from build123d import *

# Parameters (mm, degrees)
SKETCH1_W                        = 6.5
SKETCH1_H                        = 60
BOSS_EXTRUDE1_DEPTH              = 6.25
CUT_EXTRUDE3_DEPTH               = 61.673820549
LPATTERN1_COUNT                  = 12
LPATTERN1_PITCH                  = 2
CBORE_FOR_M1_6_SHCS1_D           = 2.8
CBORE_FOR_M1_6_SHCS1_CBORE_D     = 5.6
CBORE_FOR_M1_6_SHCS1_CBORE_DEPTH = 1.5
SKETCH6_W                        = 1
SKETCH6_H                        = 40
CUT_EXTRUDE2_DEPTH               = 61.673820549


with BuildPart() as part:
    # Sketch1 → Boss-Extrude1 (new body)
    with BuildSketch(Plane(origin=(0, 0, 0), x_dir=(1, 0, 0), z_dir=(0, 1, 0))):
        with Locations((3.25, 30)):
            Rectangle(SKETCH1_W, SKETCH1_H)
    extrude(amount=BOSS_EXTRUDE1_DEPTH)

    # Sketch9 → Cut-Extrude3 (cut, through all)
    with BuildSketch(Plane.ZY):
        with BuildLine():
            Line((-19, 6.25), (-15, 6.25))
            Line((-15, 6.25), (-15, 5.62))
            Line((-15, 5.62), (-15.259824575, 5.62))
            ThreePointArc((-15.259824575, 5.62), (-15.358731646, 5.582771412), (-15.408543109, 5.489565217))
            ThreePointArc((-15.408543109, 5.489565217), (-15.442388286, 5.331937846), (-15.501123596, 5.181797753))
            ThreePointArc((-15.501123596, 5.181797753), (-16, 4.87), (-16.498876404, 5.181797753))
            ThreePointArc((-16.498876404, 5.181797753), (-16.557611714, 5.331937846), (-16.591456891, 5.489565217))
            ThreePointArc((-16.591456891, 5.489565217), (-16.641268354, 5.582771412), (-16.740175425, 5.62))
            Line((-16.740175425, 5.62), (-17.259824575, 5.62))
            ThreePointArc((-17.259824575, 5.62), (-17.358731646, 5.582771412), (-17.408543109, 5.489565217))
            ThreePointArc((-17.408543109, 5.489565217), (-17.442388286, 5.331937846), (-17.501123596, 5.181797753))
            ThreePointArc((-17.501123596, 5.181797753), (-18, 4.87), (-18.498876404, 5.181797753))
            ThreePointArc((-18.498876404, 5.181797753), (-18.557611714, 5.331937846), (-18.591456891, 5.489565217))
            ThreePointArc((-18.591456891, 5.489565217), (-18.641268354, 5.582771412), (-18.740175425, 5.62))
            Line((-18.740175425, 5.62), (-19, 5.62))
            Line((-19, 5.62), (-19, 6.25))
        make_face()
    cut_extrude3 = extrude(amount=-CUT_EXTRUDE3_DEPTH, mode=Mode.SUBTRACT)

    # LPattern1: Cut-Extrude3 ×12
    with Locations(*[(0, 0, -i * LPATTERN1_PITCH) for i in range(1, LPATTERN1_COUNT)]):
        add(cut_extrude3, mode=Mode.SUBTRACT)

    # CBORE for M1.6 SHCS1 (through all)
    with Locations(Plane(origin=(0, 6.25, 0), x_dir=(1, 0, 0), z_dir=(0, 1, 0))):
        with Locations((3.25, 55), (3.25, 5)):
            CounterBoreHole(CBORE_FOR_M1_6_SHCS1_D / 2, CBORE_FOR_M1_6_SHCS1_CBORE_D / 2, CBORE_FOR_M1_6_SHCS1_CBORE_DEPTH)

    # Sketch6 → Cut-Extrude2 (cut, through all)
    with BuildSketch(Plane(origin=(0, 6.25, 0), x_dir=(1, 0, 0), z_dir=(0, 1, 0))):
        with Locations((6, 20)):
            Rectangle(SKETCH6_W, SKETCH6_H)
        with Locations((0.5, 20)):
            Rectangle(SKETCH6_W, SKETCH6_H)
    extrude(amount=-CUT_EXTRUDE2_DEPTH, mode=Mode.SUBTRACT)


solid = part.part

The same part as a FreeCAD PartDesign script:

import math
import FreeCAD as App
import Part
import Sketcher
from FreeCAD import Vector


def add_polygon(sketch, points):
    """Adds a closed chain of lines whose ends are joined by coincident constraints."""
    first, n = sketch.GeometryCount, len(points)
    for a, b in zip(points, points[1:] + points[:1]):
        sketch.addGeometry(Part.LineSegment(App.Vector(*a, 0), App.Vector(*b, 0)), False)
    for i in range(n):
        sketch.addConstraint(Sketcher.Constraint("Coincident", first + i, 2, first + (i + 1) % n, 1))

doc = App.newDocument("Part")
body = doc.addObject("PartDesign::Body", "Body")

# Sketch on XZ plane
sketch1 = body.newObject("Sketcher::SketchObject", "Sketch")
sketch1.AttachmentSupport = (doc.getObject("XZ_Plane"), [""])
sketch1.MapMode = "FlatFace"
add_polygon(sketch1, [(0, -60), (0, 0), (6, 0), (6, -60)])  # lines 0-3
sketch1.addConstraint([
    Sketcher.Constraint("Vertical", 0),
    Sketcher.Constraint("Horizontal", 1),
    Sketcher.Constraint("Vertical", 2),
    Sketcher.Constraint("Horizontal", 3),
    Sketcher.Constraint("Coincident", 0, 2, -1, 1),
    Sketcher.Constraint("DistanceY", 0, 1, 0, 2, 60.0),
    Sketcher.Constraint("DistanceX", 1, 1, 1, 2, 6.5),
])
pad1 = body.newObject("PartDesign::Pad", "Pad")
pad1.Profile = sketch1
pad1.Length = 6.25
pad1.Reversed = True

# Sketch on YZ plane
sketch2 = body.newObject("Sketcher::SketchObject", "Sketch001")
sketch2.AttachmentSupport = (doc.getObject("YZ_Plane"), [""])
sketch2.MapMode = "FlatFace"
sketch2.addGeometry([
    Part.LineSegment(Vector(6.25, -15, 0), Vector(6.25, -19, 0)),  # 0
    Part.LineSegment(Vector(6.25, -19, 0), Vector(5.62, -19, 0)),  # 1
    Part.LineSegment(Vector(5.62, -19, 0), Vector(5.62, -18.74, 0)),  # 2
    Part.ArcOfCircle(Part.Circle(Vector(5.47, -18.74, 0), Vector(0, 0, 1), 0.15), math.radians(0), math.radians(83)),  # 3
    Part.ArcOfCircle(Part.Circle(Vector(5.62, -17.6, 0), Vector(0, 0, 1), 1), math.radians(-115.99), math.radians(-97.49)),  # 4
    Part.ArcOfCircle(Part.Circle(Vector(5.42, -18, 0), Vector(0, 0, 1), 0.55), math.radians(116), math.radians(244)),  # 5
    Part.ArcOfCircle(Part.Circle(Vector(5.62, -18.4, 0), Vector(0, 0, 1), 1), math.radians(97.49), math.radians(115.99)),  # 6
    Part.ArcOfCircle(Part.Circle(Vector(5.47, -17.26, 0), Vector(0, 0, 1), 0.15), math.radians(-83), math.radians(0)),  # 7
    Part.LineSegment(Vector(5.62, -17.26, 0), Vector(5.62, -16.74, 0)),  # 8
    Part.ArcOfCircle(Part.Circle(Vector(5.47, -16.74, 0), Vector(0, 0, 1), 0.15), math.radians(0), math.radians(83)),  # 9
    Part.ArcOfCircle(Part.Circle(Vector(5.62, -15.6, 0), Vector(0, 0, 1), 1), math.radians(-115.99), math.radians(-97.49)),  # 10
    Part.ArcOfCircle(Part.Circle(Vector(5.42, -16, 0), Vector(0, 0, 1), 0.55), math.radians(116), math.radians(244)),  # 11
    Part.ArcOfCircle(Part.Circle(Vector(5.62, -16.4, 0), Vector(0, 0, 1), 1), math.radians(97.49), math.radians(115.99)),  # 12
    Part.ArcOfCircle(Part.Circle(Vector(5.47, -15.26, 0), Vector(0, 0, 1), 0.15), math.radians(-83), math.radians(0)),  # 13
    Part.LineSegment(Vector(5.62, -15.26, 0), Vector(5.62, -15, 0)),  # 14
    Part.LineSegment(Vector(5.62, -15, 0), Vector(6.25, -15, 0)),  # 15
], False)
sketch2.addConstraint([
    Sketcher.Constraint("Coincident", 0, 2, 1, 1),
    Sketcher.Constraint("Coincident", 1, 2, 2, 1),
    Sketcher.Constraint("Tangent", 2, 2, 3, 1),
    Sketcher.Constraint("Tangent", 3, 2, 4, 2),
    Sketcher.Constraint("Tangent", 4, 1, 5, 2),
    Sketcher.Constraint("Tangent", 5, 1, 6, 2),
    Sketcher.Constraint("Tangent", 6, 1, 7, 1),
    Sketcher.Constraint("Tangent", 7, 2, 8, 1),
    Sketcher.Constraint("Tangent", 8, 2, 9, 1),
    Sketcher.Constraint("Tangent", 9, 2, 10, 2),
    Sketcher.Constraint("Tangent", 10, 1, 11, 2),
    Sketcher.Constraint("Tangent", 11, 1, 12, 2),
    Sketcher.Constraint("Tangent", 12, 1, 13, 1),
    Sketcher.Constraint("Tangent", 13, 2, 14, 1),
    Sketcher.Constraint("Coincident", 14, 2, 15, 1),
    Sketcher.Constraint("Coincident", 15, 2, 0, 1),
    Sketcher.Constraint("Vertical", 0),
    Sketcher.Constraint("Horizontal", 1),
    Sketcher.Constraint("Vertical", 2),
    Sketcher.Constraint("Vertical", 8),
    Sketcher.Constraint("Vertical", 14),
    Sketcher.Constraint("Horizontal", 15),
    Sketcher.Constraint("Equal", 4, 6),
    Sketcher.Constraint("Equal", 3, 7),
    Sketcher.Constraint("Equal", 7, 9),
    Sketcher.Constraint("Equal", 6, 10),
    Sketcher.Constraint("Equal", 5, 11),
    Sketcher.Constraint("Equal", 10, 12),
    Sketcher.Constraint("Equal", 9, 13),
    Sketcher.Constraint("Vertical", 4, 3, 6, 3),
    Sketcher.Constraint("Vertical", 3, 3, 7, 3),
    Sketcher.Constraint("Vertical", 6, 3, 10, 3),
    Sketcher.Constraint("Vertical", 5, 3, 11, 3),
    Sketcher.Constraint("Vertical", 10, 3, 12, 3),
    Sketcher.Constraint("Vertical", 9, 3, 13, 3),
    Sketcher.Constraint("Vertical", 12, 3, 1, 2),
    Sketcher.Constraint("Equal", 2, 14),
    Sketcher.Constraint("Radius", 4, 1.0),
    Sketcher.Constraint("DistanceY", 0, 2, 0, 1, 4.0),
    Sketcher.Constraint("Radius", 3, 0.15),
    Sketcher.Constraint("DistanceY", 5, 3, -1, 1, 18.0),
    Sketcher.Constraint("DistanceY", 11, 3, -1, 1, 16.0),
    Sketcher.Constraint("Radius", 5, 0.555),
    Sketcher.Constraint("DistanceX", 1, 2, 1, 1, 0.63),
    Sketcher.Constraint("DistanceY", 4, 3, -1, 1, 17.6),
    Sketcher.Constraint("DistanceX", -1, 1, 3, 3, 5.47),
])
pocket1 = body.newObject("PartDesign::Pocket", "Pocket")
pocket1.Profile = sketch2
pocket1.Type = "ThroughAll"
pocket1.Reversed = True
doc.recompute()

linearpattern = body.newObject("PartDesign::LinearPattern", "LinearPattern")
linearpattern.Originals = [pocket1]
linearpattern.Direction = (doc.getObject("Z_Axis"), [""])
linearpattern.Mode = "offset"
linearpattern.Offset = 2
linearpattern.Occurrences = 12
linearpattern.Reversed = True
body.Tip = linearpattern

# Sketch on XZ plane
sketch3 = body.newObject("Sketcher::SketchObject", "Sketch002")
sketch3.AttachmentSupport = (doc.getObject("XZ_Plane"), [""])
sketch3.MapMode = "FlatFace"
sketch3.AttachmentOffset = App.Placement(Vector(0, 0, -6.25), App.Rotation())
sketch3.addGeometry([
    Part.Circle(Vector(3.2, -55, 0), Vector(0, 0, 1), 1.4),
    Part.Circle(Vector(3.2, -5, 0), Vector(0, 0, 1), 1.4),
], False)
sketch3.addConstraint([
    Sketcher.Constraint("Equal", 0, 1),
    Sketcher.Constraint("Vertical", 0, 3, 1, 3),
    Sketcher.Constraint("Diameter", 0, 2.8),
    Sketcher.Constraint("DistanceY", 0, 3, -1, 1, 55.0),
    Sketcher.Constraint("DistanceY", 1, 3, -1, 1, 5.0),
    Sketcher.Constraint("DistanceX", -1, 1, 0, 3, 3.25),
])
doc.recompute()
hole = body.newObject("PartDesign::Hole", "Hole")
hole.Profile = sketch3
hole.ThreadType = "None"
hole.Diameter = 2.8
hole.DepthType = "ThroughAll"
hole.HoleCutType = "Counterbore"
hole.HoleCutDiameter = 5.6
hole.HoleCutDepth = 1.5
hole.Reversed = True

# Sketch on XZ plane
sketch4 = body.newObject("Sketcher::SketchObject", "Sketch003")
sketch4.AttachmentSupport = (doc.getObject("XZ_Plane"), [""])
sketch4.MapMode = "FlatFace"
sketch4.AttachmentOffset = App.Placement(Vector(0, 0, -6.25), App.Rotation())
add_polygon(sketch4, [(5.5, -40), (5.5, 0), (6.5, 0), (6.5, -40)])  # lines 0-3
add_polygon(sketch4, [(0, -40), (0, 0), (1, 0), (1, -40)])  # lines 4-7
sketch4.addConstraint([
    Sketcher.Constraint("Vertical", 0),
    Sketcher.Constraint("Horizontal", 1),
    Sketcher.Constraint("Vertical", 2),
    Sketcher.Constraint("Horizontal", 3),
    Sketcher.Constraint("Vertical", 4),
    Sketcher.Constraint("Horizontal", 5),
    Sketcher.Constraint("Vertical", 6),
    Sketcher.Constraint("Horizontal", 7),
    Sketcher.Constraint("Coincident", 4, 2, -1, 1),
    Sketcher.Constraint("PointOnObject", 0, 2, -1),
    Sketcher.Constraint("Horizontal", 3, 2, 6, 2),
    Sketcher.Constraint("Equal", 3, 5),
    Sketcher.Constraint("DistanceX", 1, 1, 1, 2, 1.0),
    Sketcher.Constraint("DistanceY", 0, 1, 0, 2, 40.0),
    Sketcher.Constraint("DistanceX", -1, 1, 0, 2, 5.5),
])
pocket2 = body.newObject("PartDesign::Pocket", "Pocket001")
pocket2.Profile = sketch4
pocket2.Type = "ThroughAll"
pocket2.Reversed = True

doc.recompute()
